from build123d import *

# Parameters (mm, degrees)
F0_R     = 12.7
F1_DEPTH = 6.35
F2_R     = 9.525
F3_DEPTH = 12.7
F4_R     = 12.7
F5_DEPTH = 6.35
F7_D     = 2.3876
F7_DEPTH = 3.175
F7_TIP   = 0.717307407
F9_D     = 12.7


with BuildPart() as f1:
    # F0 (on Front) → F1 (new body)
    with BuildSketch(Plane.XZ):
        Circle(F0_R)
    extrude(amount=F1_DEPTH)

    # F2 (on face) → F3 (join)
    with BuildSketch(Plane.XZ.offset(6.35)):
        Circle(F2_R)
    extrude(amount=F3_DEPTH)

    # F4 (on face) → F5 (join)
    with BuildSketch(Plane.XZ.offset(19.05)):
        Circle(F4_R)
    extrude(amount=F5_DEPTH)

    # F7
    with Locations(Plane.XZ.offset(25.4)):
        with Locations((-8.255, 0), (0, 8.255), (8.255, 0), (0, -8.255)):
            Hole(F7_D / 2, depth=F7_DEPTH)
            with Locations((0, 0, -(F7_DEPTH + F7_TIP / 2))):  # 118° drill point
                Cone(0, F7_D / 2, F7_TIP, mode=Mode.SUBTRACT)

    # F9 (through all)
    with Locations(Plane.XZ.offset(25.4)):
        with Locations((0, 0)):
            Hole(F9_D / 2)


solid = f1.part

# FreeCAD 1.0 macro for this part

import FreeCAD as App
import Part
import Sketcher

V = App.Vector
Q = App.Units.Quantity

doc = App.newDocument("Part")
params = doc.addObject("Spreadsheet::Sheet", "Params")
for row, (alias, value) in enumerate([
    ("sketch1_diameter", "1 in"),
    ("pad1_length", "0.25 in"),
    ("sketch2_diameter", "0.75 in"),
    ("pad2_length", "0.5 in"),
    ("sketch3_diameter", "1 in"),
    ("pad3_length", "0.25 in"),
    ("sketch4_diameter", "0.094 in"),
    ("hole_diameter", "0.094 in"),
    ("hole_depth", "0.125 in"),
    ("sketch5_diameter", "0.5 in"),
    ("hole2_diameter", "0.5 in"),
], start=1):
    params.set(f"A{row}", alias)
    params.set(f"B{row}", "=" + value)
    params.setAlias(f"B{row}", alias)

body = doc.addObject("PartDesign::Body", "Body")

sketch1 = body.newObject("Sketcher::SketchObject", "Sketch")
sketch1.AttachmentSupport = (doc.getObject("XZ_Plane"), [""])
sketch1.MapMode = "FlatFace"
sketch1.addGeometry(Part.Circle(V(0, 0, 0), V(0, 0, 1), 13), False)
sketch1.addConstraint(Sketcher.Constraint("Coincident", 0, 3, -1, 1))
sketch1.addConstraint(Sketcher.Constraint("Diameter", 0, Q("1 in")))
sketch1.setExpression("Constraints[1]", "Params.sketch1_diameter")
pad1 = body.newObject("PartDesign::Pad", "Pad")
pad1.Profile = sketch1
pad1.setExpression("Length", "Params.pad1_length")

sketch2 = body.newObject("Sketcher::SketchObject", "Sketch001")
sketch2.AttachmentSupport = (doc.getObject("XZ_Plane"), [""])
sketch2.MapMode = "FlatFace"
sketch2.AttachmentOffset = App.Placement(V(0, 0, 0.25 * 25.4), App.Rotation())
sketch2.addGeometry(Part.Circle(V(0, 0, 0), V(0, 0, 1), 10), False)
sketch2.addConstraint(Sketcher.Constraint("Coincident", 0, 3, -1, 1))
sketch2.addConstraint(Sketcher.Constraint("Diameter", 0, Q("0.75 in")))
sketch2.setExpression("Constraints[1]", "Params.sketch2_diameter")
pad2 = body.newObject("PartDesign::Pad", "Pad001")
pad2.Profile = sketch2
pad2.setExpression("Length", "Params.pad2_length")

sketch3 = body.newObject("Sketcher::SketchObject", "Sketch002")
sketch3.AttachmentSupport = (doc.getObject("XZ_Plane"), [""])
sketch3.MapMode = "FlatFace"
sketch3.AttachmentOffset = App.Placement(V(0, 0, 0.75 * 25.4), App.Rotation())
sketch3.addGeometry(Part.Circle(V(0, 0, 0), V(0, 0, 1), 13), False)
sketch3.addConstraint(Sketcher.Constraint("Coincident", 0, 3, -1, 1))
sketch3.addConstraint(Sketcher.Constraint("Diameter", 0, Q("1 in")))
sketch3.setExpression("Constraints[1]", "Params.sketch3_diameter")
pad3 = body.newObject("PartDesign::Pad", "Pad002")
pad3.Profile = sketch3
pad3.setExpression("Length", "Params.pad3_length")

sketch4 = body.newObject("Sketcher::SketchObject", "Sketch003")
sketch4.AttachmentSupport = (doc.getObject("XZ_Plane"), [""])
sketch4.MapMode = "FlatFace"
sketch4.AttachmentOffset = App.Placement(V(0, 0, 1 * 25.4), App.Rotation())
sketch4.addGeometry(Part.Circle(V(-8.3, 0, 0), V(0, 0, 1), 1.2), False)
sketch4.addGeometry(Part.Circle(V(0, 8.3, 0), V(0, 0, 1), 1.2), False)
sketch4.addGeometry(Part.Circle(V(8.3, 0, 0), V(0, 0, 1), 1.2), False)
sketch4.addGeometry(Part.Circle(V(0, -8.3, 0), V(0, 0, 1), 1.2), False)
sketch4.addConstraint(Sketcher.Constraint("Equal", 0, 1))
sketch4.addConstraint(Sketcher.Constraint("Equal", 1, 2))
sketch4.addConstraint(Sketcher.Constraint("Equal", 2, 3))
sketch4.addConstraint(Sketcher.Constraint("Symmetric", 0, 3, 2, 3, -1, 1))
sketch4.addConstraint(Sketcher.Constraint("Symmetric", 1, 3, 3, 3, -1, 1))
sketch4.addConstraint(Sketcher.Constraint("PointOnObject", 0, 3, -1))
sketch4.addConstraint(Sketcher.Constraint("PointOnObject", 1, 3, -2))
sketch4.addConstraint(Sketcher.Constraint("Diameter", 0, Q("0.094 in")))
sketch4.addConstraint(Sketcher.Constraint("DistanceX", 0, 3, 2, 3, Q("0.65 in")))
sketch4.addConstraint(Sketcher.Constraint("DistanceY", 3, 3, 1, 3, Q("0.65 in")))
sketch4.setExpression("Constraints[7]", "Params.sketch4_diameter")
doc.recompute()
hole = body.newObject("PartDesign::Hole", "Hole")
hole.Profile = sketch4
hole.ThreadType = "None"
hole.setExpression("Diameter", "Params.hole_diameter")
hole.DepthType = "Dimension"
hole.setExpression("Depth", "Params.hole_depth")
hole.DrillPoint = "Angled"
hole.DrillPointAngle = 118

sketch5 = body.newObject("Sketcher::SketchObject", "Sketch004")
sketch5.AttachmentSupport = (doc.getObject("XZ_Plane"), [""])
sketch5.MapMode = "FlatFace"
sketch5.AttachmentOffset = App.Placement(V(0, 0, 1 * 25.4), App.Rotation())
sketch5.addGeometry(Part.Circle(V(0, 0, 0), V(0, 0, 1), 6), False)
sketch5.addConstraint(Sketcher.Constraint("Coincident", 0, 3, -1, 1))
sketch5.addConstraint(Sketcher.Constraint("Diameter", 0, Q("0.5 in")))
sketch5.setExpression("Constraints[1]", "Params.sketch5_diameter")
doc.recompute()
hole2 = body.newObject("PartDesign::Hole", "Hole001")
hole2.Profile = sketch5
hole2.ThreadType = "None"
hole2.setExpression("Diameter", "Params.hole2_diameter")
hole2.DepthType = "ThroughAll"

doc.recompute()
